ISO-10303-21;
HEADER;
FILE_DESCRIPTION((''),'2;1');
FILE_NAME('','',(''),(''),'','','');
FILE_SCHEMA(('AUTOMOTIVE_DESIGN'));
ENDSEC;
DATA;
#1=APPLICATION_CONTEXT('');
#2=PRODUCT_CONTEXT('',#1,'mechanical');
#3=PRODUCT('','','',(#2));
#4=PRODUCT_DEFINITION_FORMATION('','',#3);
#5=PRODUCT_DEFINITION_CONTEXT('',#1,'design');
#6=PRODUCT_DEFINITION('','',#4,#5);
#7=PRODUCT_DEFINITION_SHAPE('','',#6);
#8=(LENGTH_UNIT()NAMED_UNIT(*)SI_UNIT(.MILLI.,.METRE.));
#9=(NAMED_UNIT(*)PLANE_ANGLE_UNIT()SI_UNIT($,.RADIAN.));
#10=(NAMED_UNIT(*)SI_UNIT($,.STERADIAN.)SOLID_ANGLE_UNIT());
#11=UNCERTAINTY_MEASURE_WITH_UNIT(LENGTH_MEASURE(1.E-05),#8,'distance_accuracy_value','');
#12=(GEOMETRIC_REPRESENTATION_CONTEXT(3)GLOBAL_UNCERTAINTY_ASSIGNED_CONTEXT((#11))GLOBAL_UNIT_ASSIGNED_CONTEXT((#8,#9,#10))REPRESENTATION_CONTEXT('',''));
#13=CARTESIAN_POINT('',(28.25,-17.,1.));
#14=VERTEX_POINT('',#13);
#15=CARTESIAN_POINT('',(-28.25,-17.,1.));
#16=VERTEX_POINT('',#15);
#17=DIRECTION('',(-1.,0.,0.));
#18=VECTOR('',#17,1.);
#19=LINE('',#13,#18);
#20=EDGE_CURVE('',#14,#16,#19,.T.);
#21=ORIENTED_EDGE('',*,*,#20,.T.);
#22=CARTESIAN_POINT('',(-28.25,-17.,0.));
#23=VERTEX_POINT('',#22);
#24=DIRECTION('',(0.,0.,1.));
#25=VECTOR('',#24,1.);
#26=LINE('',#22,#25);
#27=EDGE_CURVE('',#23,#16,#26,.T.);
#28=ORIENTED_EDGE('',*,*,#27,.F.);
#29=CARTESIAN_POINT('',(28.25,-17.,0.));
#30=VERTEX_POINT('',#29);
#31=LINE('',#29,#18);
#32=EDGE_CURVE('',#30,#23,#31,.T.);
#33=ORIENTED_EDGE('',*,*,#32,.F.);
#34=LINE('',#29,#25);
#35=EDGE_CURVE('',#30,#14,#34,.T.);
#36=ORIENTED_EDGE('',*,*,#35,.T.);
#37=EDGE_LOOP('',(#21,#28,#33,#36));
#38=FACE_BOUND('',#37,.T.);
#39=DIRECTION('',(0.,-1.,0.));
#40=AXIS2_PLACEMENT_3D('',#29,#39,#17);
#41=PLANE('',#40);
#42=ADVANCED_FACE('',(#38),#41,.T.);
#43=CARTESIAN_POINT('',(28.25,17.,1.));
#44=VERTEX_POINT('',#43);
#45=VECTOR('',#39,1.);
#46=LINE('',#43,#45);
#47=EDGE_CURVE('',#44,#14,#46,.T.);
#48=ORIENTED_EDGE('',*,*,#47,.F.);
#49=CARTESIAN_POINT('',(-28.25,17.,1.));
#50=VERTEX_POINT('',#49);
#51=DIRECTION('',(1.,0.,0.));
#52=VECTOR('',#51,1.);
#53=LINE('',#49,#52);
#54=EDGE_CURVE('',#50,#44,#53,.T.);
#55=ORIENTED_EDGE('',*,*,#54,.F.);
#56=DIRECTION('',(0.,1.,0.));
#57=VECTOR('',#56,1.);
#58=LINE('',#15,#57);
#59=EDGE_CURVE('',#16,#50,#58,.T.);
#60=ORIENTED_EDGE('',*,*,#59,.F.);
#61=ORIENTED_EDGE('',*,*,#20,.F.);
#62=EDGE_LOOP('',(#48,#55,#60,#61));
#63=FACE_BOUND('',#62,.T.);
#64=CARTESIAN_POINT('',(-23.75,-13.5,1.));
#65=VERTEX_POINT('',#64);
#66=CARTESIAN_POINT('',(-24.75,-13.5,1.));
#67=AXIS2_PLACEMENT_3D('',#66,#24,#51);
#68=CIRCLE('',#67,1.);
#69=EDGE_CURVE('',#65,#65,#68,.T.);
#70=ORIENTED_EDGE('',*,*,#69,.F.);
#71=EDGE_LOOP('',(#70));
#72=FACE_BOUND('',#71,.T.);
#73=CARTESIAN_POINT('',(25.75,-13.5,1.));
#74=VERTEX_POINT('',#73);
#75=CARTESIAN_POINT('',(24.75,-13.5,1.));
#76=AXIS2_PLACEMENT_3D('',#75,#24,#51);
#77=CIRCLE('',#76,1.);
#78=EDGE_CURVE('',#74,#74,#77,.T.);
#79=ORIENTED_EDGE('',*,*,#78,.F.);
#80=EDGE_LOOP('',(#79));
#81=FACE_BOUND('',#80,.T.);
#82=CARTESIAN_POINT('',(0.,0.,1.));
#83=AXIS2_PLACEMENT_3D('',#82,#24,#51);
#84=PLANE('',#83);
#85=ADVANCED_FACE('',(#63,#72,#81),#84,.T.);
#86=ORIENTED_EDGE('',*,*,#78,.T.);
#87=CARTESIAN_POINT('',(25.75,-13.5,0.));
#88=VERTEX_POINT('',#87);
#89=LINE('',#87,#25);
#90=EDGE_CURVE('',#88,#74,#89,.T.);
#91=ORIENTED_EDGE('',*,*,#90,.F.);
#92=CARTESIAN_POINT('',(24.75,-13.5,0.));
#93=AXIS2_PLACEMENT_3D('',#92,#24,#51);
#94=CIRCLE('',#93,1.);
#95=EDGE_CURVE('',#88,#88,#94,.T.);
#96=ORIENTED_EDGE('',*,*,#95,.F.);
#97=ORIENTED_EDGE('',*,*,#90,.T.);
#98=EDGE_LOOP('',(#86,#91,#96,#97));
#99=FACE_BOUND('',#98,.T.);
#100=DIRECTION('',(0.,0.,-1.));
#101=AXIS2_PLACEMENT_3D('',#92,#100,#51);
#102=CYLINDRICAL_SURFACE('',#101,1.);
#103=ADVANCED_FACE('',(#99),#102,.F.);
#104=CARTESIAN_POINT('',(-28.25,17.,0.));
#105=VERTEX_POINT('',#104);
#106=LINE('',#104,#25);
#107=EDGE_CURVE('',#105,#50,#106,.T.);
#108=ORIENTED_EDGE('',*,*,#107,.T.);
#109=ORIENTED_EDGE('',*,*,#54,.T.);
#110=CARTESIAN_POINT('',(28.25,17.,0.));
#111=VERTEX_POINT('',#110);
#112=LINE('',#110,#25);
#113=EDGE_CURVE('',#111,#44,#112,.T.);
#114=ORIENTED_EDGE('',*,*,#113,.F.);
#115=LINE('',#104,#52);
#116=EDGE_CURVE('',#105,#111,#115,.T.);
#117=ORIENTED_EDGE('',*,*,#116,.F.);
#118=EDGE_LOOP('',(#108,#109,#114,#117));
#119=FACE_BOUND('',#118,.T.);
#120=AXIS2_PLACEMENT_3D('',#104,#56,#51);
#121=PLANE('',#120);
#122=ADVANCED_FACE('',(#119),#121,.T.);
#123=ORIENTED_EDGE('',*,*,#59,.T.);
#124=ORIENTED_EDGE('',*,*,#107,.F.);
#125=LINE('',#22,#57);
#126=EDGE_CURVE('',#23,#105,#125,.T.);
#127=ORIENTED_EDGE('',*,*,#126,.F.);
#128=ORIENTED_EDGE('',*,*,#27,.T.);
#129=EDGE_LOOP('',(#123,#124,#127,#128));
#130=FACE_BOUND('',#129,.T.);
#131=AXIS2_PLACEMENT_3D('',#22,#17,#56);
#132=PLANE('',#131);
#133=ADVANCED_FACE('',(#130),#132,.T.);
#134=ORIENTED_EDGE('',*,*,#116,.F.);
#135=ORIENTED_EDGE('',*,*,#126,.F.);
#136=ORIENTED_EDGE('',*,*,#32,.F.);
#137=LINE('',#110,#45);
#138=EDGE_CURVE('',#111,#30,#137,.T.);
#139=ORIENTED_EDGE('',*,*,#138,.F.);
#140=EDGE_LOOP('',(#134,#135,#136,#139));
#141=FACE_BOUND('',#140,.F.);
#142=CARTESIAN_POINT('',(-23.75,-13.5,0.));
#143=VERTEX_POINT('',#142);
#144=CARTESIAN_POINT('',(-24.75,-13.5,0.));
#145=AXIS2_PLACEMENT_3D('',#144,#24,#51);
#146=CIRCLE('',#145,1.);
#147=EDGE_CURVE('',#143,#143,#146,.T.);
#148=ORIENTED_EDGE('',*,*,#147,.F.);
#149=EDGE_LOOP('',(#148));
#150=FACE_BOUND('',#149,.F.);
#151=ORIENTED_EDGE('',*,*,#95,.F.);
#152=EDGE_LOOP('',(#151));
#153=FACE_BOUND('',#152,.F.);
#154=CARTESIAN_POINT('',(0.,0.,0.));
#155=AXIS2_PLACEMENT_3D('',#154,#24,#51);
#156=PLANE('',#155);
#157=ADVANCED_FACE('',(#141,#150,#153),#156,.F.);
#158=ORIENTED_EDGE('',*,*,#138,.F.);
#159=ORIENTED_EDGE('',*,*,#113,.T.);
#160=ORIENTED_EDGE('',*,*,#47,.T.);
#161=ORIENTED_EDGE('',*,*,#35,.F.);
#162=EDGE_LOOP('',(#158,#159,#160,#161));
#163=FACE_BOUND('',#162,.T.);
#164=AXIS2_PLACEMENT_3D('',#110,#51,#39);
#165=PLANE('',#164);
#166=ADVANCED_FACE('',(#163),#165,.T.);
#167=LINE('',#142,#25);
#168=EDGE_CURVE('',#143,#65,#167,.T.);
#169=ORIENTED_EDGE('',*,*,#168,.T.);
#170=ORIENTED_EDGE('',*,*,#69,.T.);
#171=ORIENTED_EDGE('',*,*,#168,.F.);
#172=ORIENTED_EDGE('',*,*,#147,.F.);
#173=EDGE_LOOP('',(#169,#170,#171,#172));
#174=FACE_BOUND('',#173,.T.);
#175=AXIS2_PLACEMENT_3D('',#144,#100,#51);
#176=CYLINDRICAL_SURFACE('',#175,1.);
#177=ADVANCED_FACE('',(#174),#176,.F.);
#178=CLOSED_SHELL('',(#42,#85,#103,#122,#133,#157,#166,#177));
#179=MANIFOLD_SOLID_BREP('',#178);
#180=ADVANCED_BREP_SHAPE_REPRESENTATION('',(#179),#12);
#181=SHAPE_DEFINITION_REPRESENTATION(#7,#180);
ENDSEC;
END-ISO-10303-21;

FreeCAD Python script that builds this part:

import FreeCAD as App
import Part
import Sketcher


def add_polygon(sketch, points):
    """Adds a closed chain of lines whose ends are joined by coincident constraints."""
    first, n = sketch.GeometryCount, len(points)
    for a, b in zip(points, points[1:] + points[:1]):
        sketch.addGeometry(Part.LineSegment(App.Vector(*a, 0), App.Vector(*b, 0)), False)
    for i in range(n):
        sketch.addConstraint(Sketcher.Constraint("Coincident", first + i, 2, first + (i + 1) % n, 1))

doc = App.newDocument("Part")
body = doc.addObject("PartDesign::Body", "Body")

# Sketch on XY plane
sketch1 = doc.addObject("Sketcher::SketchObject", "Sketch")
body.addObject(sketch1)
sketch1.AttachmentSupport = (doc.XY_Plane, [""])
sketch1.MapMode = "FlatFace"
add_polygon(sketch1, [(28.2, 17), (-28.2, 17), (-28.2, -17), (28.2, -17)])  # lines 0-3
sketch1.addGeometry(Part.Circle(App.Vector(-24.8, -13.5, 0), App.Vector(0, 0, 1), 1), False)  # 4
sketch1.addGeometry(Part.Circle(App.Vector(24.8, -13.5, 0), App.Vector(0, 0, 1), 1), False)  # 5
sketch1.addConstraint(Sketcher.Constraint("Horizontal", 0))
sketch1.addConstraint(Sketcher.Constraint("Vertical", 1))
sketch1.addConstraint(Sketcher.Constraint("Horizontal", 2))
sketch1.addConstraint(Sketcher.Constraint("Vertical", 3))
sketch1.addConstraint(Sketcher.Constraint("Equal", 4, 5))
sketch1.addConstraint(Sketcher.Constraint("Symmetric", 0, 2, 2, 2, -1, 1))
sketch1.addConstraint(Sketcher.Constraint("Symmetric", 4, 3, 5, 3, -2))
sketch1.addConstraint(Sketcher.Constraint("Diameter", 4, 2.0))
sketch1.addConstraint(Sketcher.Constraint("DistanceY", 1, 2, 1, 1, 34.0))
sketch1.addConstraint(Sketcher.Constraint("DistanceX", 0, 2, 0, 1, 56.5))
sketch1.addConstraint(Sketcher.Constraint("DistanceX", 4, 3, 5, 3, 49.5))
sketch1.addConstraint(Sketcher.Constraint("DistanceY", 1, 2, 4, 3, 3.5))
pad1 = doc.addObject("PartDesign::Pad", "Pad")
body.addObject(pad1)
pad1.Profile = sketch1
pad1.Length = 1

doc.recompute()
